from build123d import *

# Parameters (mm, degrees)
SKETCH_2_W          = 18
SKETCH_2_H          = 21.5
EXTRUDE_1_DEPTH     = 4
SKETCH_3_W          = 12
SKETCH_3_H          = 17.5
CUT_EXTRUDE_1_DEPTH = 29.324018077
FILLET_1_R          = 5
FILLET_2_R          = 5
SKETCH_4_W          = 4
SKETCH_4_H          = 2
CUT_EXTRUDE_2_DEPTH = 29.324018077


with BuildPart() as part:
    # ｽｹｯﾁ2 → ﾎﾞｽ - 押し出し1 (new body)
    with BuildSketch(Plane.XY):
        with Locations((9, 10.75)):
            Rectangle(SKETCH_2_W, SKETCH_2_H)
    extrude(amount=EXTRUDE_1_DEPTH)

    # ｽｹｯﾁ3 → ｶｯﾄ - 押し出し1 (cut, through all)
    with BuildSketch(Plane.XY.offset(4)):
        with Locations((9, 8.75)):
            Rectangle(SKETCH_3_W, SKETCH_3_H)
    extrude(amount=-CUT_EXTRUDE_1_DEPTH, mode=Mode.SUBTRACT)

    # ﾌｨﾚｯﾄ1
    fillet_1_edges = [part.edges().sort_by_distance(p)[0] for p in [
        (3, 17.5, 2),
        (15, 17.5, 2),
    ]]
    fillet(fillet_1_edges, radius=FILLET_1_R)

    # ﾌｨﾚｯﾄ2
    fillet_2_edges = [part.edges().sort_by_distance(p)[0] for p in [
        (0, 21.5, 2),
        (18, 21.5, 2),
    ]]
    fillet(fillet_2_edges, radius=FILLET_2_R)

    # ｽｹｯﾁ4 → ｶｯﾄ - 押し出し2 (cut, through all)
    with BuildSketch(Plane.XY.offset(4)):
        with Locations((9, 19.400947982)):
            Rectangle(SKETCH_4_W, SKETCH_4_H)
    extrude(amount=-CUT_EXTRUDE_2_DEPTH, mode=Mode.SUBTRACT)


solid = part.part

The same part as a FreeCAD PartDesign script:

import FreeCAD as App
import Part
import Sketcher

V = App.Vector
Q = App.Units.Quantity


def edges_at(feature, points):
    """Names of the edges that pass closest to the given points."""
    edges = feature.Shape.Edges
    near = lambda p: min(range(len(edges)), key=lambda i: edges[i].distToShape(Part.Vertex(*p))[0])
    return sorted({f"Edge{near(p) + 1}" for p in points})


def add_polygon(sketch, points):
    """Adds a closed chain of lines whose ends are joined by coincident constraints."""
    first, n = sketch.GeometryCount, len(points)
    for a, b in zip(points, points[1:] + points[:1]):
        sketch.addGeometry(Part.LineSegment(App.Vector(*a, 0), App.Vector(*b, 0)), False)
    for i in range(n):
        sketch.addConstraint(Sketcher.Constraint("Coincident", first + i, 2, first + (i + 1) % n, 1))

doc = App.newDocument("Part")
body = doc.addObject("PartDesign::Body", "Body")

# Sketch on XY plane
sketch1 = body.newObject("Sketcher::SketchObject", "Sketch")
sketch1.AttachmentSupport = (doc.getObject("XY_Plane"), [""])
sketch1.MapMode = "FlatFace"
add_polygon(sketch1, [(0, 22), (0, 0), (18, 0), (18, 22)])  # lines 0-3
sketch1.addConstraint([
    Sketcher.Constraint("Vertical", 0),
    Sketcher.Constraint("Horizontal", 1),
    Sketcher.Constraint("Vertical", 2),
    Sketcher.Constraint("Horizontal", 3),
    Sketcher.Constraint("Coincident", 0, 2, -1, 1),
    Sketcher.Constraint("DistanceX", 1, 1, 1, 2, Q("18 mm")),
    Sketcher.Constraint("DistanceY", 0, 2, 0, 1, Q("21.5 mm")),
])
pad1 = body.newObject("PartDesign::Pad", "Pad")
pad1.Profile = sketch1
pad1.Length = 4

# Sketch on XY plane
sketch2 = body.newObject("Sketcher::SketchObject", "Sketch001")
sketch2.AttachmentSupport = (doc.getObject("XY_Plane"), [""])
sketch2.MapMode = "FlatFace"
sketch2.AttachmentOffset = App.Placement(V(0, 0, 4), App.Rotation())
add_polygon(sketch2, [(3, 18), (3, 0), (15, 0), (15, 18)])  # lines 0-3
sketch2.addConstraint([
    Sketcher.Constraint("Vertical", 0),
    Sketcher.Constraint("Horizontal", 1),
    Sketcher.Constraint("Vertical", 2),
    Sketcher.Constraint("Horizontal", 3),
    Sketcher.Constraint("PointOnObject", 0, 2, -1),
    Sketcher.Constraint("DistanceX", 1, 1, 1, 2, Q("12 mm")),
    Sketcher.Constraint("DistanceY", 0, 2, 0, 1, Q("17.5 mm")),
    Sketcher.Constraint("DistanceX", -1, 1, 0, 2, Q("3 mm")),
])
pocket1 = body.newObject("PartDesign::Pocket", "Pocket")
pocket1.Profile = sketch2
pocket1.Type = "ThroughAll"
doc.recompute()

fillet = body.newObject("PartDesign::Fillet", "Fillet")
fillet.Base = (pocket1, edges_at(pocket1, [(3, 17.5, 2), (15, 17.5, 2)]))
fillet.Radius = 5
doc.recompute()

fillet2 = body.newObject("PartDesign::Fillet", "Fillet001")
fillet2.Base = (fillet, edges_at(fillet, [(0, 21.5, 2), (18, 21.5, 2)]))
fillet2.Radius = 5

# Sketch on XY plane
sketch3 = body.newObject("Sketcher::SketchObject", "Sketch002")
sketch3.AttachmentSupport = (doc.getObject("XY_Plane"), [""])
sketch3.MapMode = "FlatFace"
sketch3.AttachmentOffset = App.Placement(V(0, 0, 4), App.Rotation())
add_polygon(sketch3, [(7, 20.4), (7, 18.4), (11, 18.4), (11, 20.4)])  # lines 0-3
sketch3.addConstraint([
    Sketcher.Constraint("Vertical", 0),
    Sketcher.Constraint("Horizontal", 1),
    Sketcher.Constraint("Vertical", 2),
    Sketcher.Constraint("Horizontal", 3),
    Sketcher.Constraint("DistanceX", 1, 1, 1, 2, Q("4 mm")),
    Sketcher.Constraint("DistanceY", 0, 2, 0, 1, Q("2 mm")),
    Sketcher.Constraint("DistanceX", -1, 1, 0, 2, Q("7 mm")),
    Sketcher.Constraint("DistanceY", -1, 1, 0, 2, Q("18.400948 mm")),
])
pocket2 = body.newObject("PartDesign::Pocket", "Pocket001")
pocket2.Profile = sketch3
pocket2.Type = "ThroughAll"

doc.recompute()
